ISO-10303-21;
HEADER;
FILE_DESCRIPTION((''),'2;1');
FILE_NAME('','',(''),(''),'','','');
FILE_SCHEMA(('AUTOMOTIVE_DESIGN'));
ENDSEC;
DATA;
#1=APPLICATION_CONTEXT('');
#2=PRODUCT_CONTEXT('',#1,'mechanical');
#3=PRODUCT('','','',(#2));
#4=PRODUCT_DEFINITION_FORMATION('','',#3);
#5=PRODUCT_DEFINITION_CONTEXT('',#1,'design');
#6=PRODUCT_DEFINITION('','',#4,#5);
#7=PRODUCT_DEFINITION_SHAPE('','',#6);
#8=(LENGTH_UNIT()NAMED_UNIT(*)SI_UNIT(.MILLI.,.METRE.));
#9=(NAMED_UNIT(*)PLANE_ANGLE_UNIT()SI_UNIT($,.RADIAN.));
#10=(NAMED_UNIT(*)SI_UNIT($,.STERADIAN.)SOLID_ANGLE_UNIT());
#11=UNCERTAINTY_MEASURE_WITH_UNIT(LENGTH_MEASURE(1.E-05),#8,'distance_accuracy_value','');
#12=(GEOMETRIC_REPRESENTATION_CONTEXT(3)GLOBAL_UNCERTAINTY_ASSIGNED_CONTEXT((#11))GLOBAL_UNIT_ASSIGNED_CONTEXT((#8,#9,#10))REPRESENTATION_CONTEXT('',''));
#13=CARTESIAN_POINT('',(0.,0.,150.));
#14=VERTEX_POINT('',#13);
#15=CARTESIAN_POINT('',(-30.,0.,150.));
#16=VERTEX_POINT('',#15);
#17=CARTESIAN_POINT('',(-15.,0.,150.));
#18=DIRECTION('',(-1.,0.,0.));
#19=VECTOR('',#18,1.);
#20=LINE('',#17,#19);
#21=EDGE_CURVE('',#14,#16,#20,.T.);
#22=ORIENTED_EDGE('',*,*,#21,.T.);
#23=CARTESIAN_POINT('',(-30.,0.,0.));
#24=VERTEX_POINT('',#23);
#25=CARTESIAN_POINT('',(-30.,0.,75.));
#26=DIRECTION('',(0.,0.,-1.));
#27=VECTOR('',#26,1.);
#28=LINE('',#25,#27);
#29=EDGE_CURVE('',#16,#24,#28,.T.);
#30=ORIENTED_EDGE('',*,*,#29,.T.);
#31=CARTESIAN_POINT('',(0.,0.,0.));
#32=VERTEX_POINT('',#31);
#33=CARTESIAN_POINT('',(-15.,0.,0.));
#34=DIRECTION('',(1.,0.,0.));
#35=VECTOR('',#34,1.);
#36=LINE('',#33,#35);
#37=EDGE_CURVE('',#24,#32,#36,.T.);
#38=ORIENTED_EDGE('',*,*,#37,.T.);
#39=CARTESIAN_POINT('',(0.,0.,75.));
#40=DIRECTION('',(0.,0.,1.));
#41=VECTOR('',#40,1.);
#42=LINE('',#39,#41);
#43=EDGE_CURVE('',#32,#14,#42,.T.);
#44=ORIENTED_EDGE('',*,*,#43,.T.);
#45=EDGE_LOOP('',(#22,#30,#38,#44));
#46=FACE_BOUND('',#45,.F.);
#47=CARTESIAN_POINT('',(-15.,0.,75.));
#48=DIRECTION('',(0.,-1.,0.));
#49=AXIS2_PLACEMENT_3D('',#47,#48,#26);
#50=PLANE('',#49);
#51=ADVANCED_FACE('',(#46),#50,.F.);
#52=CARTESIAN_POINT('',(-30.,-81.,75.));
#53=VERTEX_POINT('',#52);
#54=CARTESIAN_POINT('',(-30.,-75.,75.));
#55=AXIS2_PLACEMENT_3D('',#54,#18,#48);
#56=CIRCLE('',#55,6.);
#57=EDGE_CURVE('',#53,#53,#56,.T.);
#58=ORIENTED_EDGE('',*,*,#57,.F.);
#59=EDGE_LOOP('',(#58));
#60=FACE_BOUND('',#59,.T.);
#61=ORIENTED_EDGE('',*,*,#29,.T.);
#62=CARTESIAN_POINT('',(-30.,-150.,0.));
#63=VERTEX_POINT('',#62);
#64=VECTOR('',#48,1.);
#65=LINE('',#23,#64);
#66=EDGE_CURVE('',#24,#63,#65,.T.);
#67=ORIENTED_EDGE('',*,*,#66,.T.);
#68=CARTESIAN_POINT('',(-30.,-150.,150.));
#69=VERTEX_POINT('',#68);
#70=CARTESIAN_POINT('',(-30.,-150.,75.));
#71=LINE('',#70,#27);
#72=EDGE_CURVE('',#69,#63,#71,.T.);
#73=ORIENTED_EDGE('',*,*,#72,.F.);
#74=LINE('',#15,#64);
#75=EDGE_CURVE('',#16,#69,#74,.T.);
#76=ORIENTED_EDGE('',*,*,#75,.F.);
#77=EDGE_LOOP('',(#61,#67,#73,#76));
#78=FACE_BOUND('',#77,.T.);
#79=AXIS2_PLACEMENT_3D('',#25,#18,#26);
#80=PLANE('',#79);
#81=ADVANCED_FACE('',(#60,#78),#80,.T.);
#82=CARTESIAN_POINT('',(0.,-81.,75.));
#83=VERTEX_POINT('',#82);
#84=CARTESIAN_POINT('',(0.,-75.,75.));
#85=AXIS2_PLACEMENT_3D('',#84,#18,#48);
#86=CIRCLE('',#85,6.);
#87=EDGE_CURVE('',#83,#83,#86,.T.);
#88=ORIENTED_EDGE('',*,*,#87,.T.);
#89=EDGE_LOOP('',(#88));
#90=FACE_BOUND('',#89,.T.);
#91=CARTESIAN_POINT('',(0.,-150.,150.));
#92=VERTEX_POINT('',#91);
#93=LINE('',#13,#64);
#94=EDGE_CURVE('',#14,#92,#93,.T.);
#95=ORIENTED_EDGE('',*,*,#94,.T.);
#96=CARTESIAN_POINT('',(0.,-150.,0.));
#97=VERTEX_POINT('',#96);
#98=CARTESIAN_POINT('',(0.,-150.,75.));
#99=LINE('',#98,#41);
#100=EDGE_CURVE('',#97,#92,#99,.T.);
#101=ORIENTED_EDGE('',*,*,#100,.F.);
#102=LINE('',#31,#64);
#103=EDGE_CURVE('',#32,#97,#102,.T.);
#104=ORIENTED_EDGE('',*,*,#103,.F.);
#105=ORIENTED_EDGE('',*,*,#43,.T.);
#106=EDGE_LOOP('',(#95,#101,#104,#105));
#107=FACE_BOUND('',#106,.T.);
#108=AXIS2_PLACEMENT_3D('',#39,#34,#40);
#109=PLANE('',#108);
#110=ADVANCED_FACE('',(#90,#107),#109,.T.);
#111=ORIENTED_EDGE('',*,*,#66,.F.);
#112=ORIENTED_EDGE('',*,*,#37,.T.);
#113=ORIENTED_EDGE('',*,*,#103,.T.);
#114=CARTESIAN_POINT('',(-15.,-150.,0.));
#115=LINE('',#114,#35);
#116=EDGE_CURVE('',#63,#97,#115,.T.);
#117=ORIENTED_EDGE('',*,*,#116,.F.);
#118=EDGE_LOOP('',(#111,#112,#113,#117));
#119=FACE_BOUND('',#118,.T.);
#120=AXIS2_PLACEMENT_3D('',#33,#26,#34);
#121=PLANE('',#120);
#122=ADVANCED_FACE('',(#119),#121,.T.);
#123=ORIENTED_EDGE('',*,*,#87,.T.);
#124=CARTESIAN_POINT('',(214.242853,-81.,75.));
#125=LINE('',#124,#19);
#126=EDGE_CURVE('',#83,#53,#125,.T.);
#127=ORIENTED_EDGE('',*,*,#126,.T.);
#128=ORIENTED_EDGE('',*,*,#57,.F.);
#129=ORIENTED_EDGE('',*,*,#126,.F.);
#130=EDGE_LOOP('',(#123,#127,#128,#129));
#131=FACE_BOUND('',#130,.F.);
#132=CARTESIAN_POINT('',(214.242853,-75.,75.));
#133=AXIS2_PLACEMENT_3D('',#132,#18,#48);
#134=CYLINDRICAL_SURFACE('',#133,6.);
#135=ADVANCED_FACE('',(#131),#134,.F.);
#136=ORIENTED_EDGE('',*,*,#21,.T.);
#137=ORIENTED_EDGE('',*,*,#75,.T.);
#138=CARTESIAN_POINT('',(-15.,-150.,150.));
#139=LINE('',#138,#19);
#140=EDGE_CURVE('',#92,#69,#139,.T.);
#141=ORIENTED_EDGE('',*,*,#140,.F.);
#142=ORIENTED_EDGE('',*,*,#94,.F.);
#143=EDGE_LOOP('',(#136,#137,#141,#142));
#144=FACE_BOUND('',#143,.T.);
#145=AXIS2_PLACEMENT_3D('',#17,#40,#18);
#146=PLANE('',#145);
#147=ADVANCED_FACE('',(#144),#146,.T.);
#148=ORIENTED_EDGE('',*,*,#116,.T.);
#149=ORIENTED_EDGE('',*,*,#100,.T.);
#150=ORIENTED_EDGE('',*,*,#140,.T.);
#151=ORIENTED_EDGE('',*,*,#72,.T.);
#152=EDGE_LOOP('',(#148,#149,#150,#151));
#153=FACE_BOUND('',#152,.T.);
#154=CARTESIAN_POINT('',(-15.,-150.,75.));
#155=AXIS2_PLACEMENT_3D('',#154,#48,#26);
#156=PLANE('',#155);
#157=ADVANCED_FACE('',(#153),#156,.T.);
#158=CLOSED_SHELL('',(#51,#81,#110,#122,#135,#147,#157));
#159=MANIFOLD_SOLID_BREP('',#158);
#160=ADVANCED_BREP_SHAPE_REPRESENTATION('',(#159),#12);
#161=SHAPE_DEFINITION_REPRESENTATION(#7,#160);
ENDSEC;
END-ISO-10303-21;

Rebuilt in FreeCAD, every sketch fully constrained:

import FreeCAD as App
import Part
import Sketcher


def add_polygon(sketch, points):
    """Adds a closed chain of lines whose ends are joined by coincident constraints."""
    first, n = sketch.GeometryCount, len(points)
    for a, b in zip(points, points[1:] + points[:1]):
        sketch.addGeometry(Part.LineSegment(App.Vector(*a, 0), App.Vector(*b, 0)), False)
    for i in range(n):
        sketch.addConstraint(Sketcher.Constraint("Coincident", first + i, 2, first + (i + 1) % n, 1))

doc = App.newDocument("Part")
body = doc.addObject("PartDesign::Body", "Body")

# Sketch on XZ plane
sketch1 = body.newObject("Sketcher::SketchObject", "Sketch")
sketch1.AttachmentSupport = (doc.getObject("XZ_Plane"), [""])
sketch1.MapMode = "FlatFace"
add_polygon(sketch1, [(-30, 150), (-30, 0), (0, 0), (0, 150)])  # lines 0-3
sketch1.addConstraint([
    Sketcher.Constraint("Vertical", 0),
    Sketcher.Constraint("Horizontal", 1),
    Sketcher.Constraint("Vertical", 2),
    Sketcher.Constraint("Horizontal", 3),
    Sketcher.Constraint("Coincident", 1, 2, -1, 1),
    Sketcher.Constraint("DistanceX", 1, 1, 1, 2, 30.0),
    Sketcher.Constraint("DistanceY", 0, 2, 0, 1, 150.0),
])

# Sketch on XY plane
sketch2 = body.newObject("Sketcher::SketchObject", "Sketch001")
sketch2.AttachmentSupport = (doc.getObject("XY_Plane"), [""])
sketch2.MapMode = "FlatFace"
sketch2.addGeometry(Part.LineSegment(App.Vector(0, 0, 0), App.Vector(0, -150, 0)), False)
sketch2.addConstraint([
    Sketcher.Constraint("Vertical", 0),
    Sketcher.Constraint("Coincident", 0, 1, -1, 1),
    Sketcher.Constraint("DistanceY", 0, 2, 0, 1, 150.0),
])
doc.recompute()

additivepipe = body.newObject("PartDesign::AdditivePipe", "AdditivePipe")
additivepipe.Profile = sketch1
additivepipe.Spine = (sketch2, ["Edge1"])

# Sketch on YZ plane
sketch3 = body.newObject("Sketcher::SketchObject", "Sketch002")
sketch3.AttachmentSupport = (doc.getObject("YZ_Plane"), [""])
sketch3.MapMode = "FlatFace"
sketch3.addGeometry(Part.Circle(App.Vector(-75, 75, 0), App.Vector(0, 0, 1), 6), False)
sketch3.addConstraint([
    Sketcher.Constraint("Diameter", 0, 12.0),
    Sketcher.Constraint("DistanceX", 0, 3, -1, 1, 75.0),
    Sketcher.Constraint("DistanceY", -1, 1, 0, 3, 75.0),
])
doc.recompute()
hole = body.newObject("PartDesign::Hole", "Hole")
hole.Profile = sketch3
hole.ThreadType = "None"
hole.Diameter = 12
hole.DepthType = "ThroughAll"

doc.recompute()
